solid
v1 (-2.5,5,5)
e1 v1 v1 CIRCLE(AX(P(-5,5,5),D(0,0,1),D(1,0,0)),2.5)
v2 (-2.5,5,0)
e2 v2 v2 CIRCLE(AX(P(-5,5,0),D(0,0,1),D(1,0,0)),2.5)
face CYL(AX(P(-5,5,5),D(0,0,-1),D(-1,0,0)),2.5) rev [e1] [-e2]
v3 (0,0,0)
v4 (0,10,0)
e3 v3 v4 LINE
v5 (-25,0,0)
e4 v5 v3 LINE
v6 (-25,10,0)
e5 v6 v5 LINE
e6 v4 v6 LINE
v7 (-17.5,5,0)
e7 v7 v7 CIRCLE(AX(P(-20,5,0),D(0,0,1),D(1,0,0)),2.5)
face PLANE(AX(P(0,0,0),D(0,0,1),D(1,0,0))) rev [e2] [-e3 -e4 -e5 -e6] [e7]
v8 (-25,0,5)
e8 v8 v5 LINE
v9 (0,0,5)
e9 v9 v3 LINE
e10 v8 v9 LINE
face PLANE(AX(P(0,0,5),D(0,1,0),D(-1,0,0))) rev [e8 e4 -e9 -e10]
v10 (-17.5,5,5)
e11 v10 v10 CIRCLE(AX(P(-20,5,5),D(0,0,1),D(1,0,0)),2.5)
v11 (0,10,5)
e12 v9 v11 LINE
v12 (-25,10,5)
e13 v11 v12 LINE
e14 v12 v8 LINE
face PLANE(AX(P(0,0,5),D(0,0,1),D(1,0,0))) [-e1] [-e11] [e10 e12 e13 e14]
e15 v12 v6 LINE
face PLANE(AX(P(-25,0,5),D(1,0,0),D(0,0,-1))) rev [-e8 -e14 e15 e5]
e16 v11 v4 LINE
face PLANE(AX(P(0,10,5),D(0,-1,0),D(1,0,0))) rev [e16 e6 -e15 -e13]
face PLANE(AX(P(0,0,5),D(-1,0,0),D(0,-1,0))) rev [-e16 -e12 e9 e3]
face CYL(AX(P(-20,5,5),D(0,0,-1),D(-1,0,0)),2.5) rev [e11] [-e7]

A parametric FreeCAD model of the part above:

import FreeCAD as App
import Part
import Sketcher
from FreeCAD import Vector

doc = App.newDocument("Part")
body = doc.addObject("PartDesign::Body", "Body")

sketch1 = body.newObject("Sketcher::SketchObject", "Sketch")
sketch1.AttachmentSupport = (doc.getObject("XY_Plane"), [""])
sketch1.MapMode = "FlatFace"
sketch1.addGeometry(Part.LineSegment(Vector(-25, 10, 0), Vector(-25, 0, 0)), False)
sketch1.addGeometry(Part.LineSegment(Vector(-25, 0, 0), Vector(0, 0, 0)), False)
sketch1.addGeometry(Part.LineSegment(Vector(0, 0, 0), Vector(0, 10, 0)), False)
sketch1.addGeometry(Part.LineSegment(Vector(0, 10, 0), Vector(-25, 10, 0)), False)
sketch1.addGeometry(Part.Circle(Vector(-20, 5, 0), Vector(0, 0, 1), 2.5), False)
sketch1.addGeometry(Part.Circle(Vector(-5, 5, 0), Vector(0, 0, 1), 2.5), False)
sketch1.addConstraint(Sketcher.Constraint("Coincident", 0, 2, 1, 1))
sketch1.addConstraint(Sketcher.Constraint("Coincident", 1, 2, 2, 1))
sketch1.addConstraint(Sketcher.Constraint("Coincident", 2, 2, 3, 1))
sketch1.addConstraint(Sketcher.Constraint("Coincident", 3, 2, 0, 1))
sketch1.addConstraint(Sketcher.Constraint("Vertical", 0))
sketch1.addConstraint(Sketcher.Constraint("Horizontal", 1))
sketch1.addConstraint(Sketcher.Constraint("Vertical", 2))
sketch1.addConstraint(Sketcher.Constraint("Horizontal", 3))
sketch1.addConstraint(Sketcher.Constraint("Coincident", 1, 2, -1, 1))
sketch1.addConstraint(Sketcher.Constraint("Equal", 4, 5))
sketch1.addConstraint(Sketcher.Constraint("Horizontal", 4, 3, 5, 3))
sketch1.addConstraint(Sketcher.Constraint("Diameter", 4, 5.0))
sketch1.addConstraint(Sketcher.Constraint("DistanceX", 1, 1, 1, 2, 25.0))
sketch1.addConstraint(Sketcher.Constraint("DistanceY", 0, 2, 0, 1, 10.0))
sketch1.addConstraint(Sketcher.Constraint("DistanceX", 4, 3, -1, 1, 20.0))
sketch1.addConstraint(Sketcher.Constraint("DistanceY", -1, 1, 4, 3, 5.0))
sketch1.addConstraint(Sketcher.Constraint("DistanceX", 5, 3, -1, 1, 5.0))
pad1 = body.newObject("PartDesign::Pad", "Pad")
pad1.Profile = sketch1
pad1.Length = 5

doc.recompute()
